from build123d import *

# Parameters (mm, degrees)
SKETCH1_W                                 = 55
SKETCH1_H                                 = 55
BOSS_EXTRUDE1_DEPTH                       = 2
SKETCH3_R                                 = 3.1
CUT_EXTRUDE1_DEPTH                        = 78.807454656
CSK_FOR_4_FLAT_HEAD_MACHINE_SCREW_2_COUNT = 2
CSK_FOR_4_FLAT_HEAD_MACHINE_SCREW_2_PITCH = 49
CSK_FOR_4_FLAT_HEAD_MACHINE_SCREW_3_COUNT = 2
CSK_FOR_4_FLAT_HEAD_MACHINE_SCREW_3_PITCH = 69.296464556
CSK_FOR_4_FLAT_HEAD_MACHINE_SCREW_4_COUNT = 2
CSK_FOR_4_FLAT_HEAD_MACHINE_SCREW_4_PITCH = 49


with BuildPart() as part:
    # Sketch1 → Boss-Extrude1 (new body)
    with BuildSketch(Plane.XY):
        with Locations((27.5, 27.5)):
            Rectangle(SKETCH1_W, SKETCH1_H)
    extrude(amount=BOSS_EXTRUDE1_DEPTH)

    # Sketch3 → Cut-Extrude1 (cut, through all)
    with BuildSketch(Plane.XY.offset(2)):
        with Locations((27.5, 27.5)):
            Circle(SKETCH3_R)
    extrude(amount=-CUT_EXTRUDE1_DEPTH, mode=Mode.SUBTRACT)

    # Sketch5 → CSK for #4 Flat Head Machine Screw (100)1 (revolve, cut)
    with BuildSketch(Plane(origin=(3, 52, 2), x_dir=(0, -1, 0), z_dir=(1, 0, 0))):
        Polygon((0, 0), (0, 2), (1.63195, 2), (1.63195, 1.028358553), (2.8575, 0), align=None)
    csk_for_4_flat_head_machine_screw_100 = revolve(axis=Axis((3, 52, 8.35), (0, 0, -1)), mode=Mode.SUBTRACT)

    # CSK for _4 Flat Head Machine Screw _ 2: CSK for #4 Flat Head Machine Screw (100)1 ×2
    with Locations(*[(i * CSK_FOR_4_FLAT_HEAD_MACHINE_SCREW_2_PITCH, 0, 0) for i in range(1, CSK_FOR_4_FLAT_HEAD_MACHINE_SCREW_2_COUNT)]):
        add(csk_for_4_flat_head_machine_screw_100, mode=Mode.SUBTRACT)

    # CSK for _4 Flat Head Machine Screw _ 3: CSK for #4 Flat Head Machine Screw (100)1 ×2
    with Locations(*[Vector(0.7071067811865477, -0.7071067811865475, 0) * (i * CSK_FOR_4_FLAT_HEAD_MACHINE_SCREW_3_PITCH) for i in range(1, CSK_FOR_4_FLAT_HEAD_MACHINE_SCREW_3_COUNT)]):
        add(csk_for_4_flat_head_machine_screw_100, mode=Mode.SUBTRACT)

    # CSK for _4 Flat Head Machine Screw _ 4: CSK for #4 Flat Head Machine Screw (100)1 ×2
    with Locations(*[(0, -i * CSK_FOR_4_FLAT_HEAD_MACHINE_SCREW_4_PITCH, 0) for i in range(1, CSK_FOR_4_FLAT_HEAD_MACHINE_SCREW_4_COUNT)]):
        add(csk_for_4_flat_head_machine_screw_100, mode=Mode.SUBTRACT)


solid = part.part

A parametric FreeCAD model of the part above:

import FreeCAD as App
import Part
import Sketcher

V = App.Vector
Q = App.Units.Quantity


def add_polygon(sketch, points):
    """Adds a closed chain of lines whose ends are joined by coincident constraints."""
    first, n = sketch.GeometryCount, len(points)
    for a, b in zip(points, points[1:] + points[:1]):
        sketch.addGeometry(Part.LineSegment(App.Vector(*a, 0), App.Vector(*b, 0)), False)
    for i in range(n):
        sketch.addConstraint(Sketcher.Constraint("Coincident", first + i, 2, first + (i + 1) % n, 1))

doc = App.newDocument("Part")
body = doc.addObject("PartDesign::Body", "Body")

sketch1 = body.newObject("Sketcher::SketchObject", "Sketch")
sketch1.AttachmentSupport = (doc.getObject("XY_Plane"), [""])
sketch1.MapMode = "FlatFace"
add_polygon(sketch1, [(0, 55), (0, 0), (55, 0), (55, 55)])
sketch1.addConstraint(Sketcher.Constraint("Vertical", 0))
sketch1.addConstraint(Sketcher.Constraint("Horizontal", 1))
sketch1.addConstraint(Sketcher.Constraint("Vertical", 2))
sketch1.addConstraint(Sketcher.Constraint("Horizontal", 3))
sketch1.addConstraint(Sketcher.Constraint("Coincident", 0, 2, -1, 1))
sketch1.addConstraint(Sketcher.Constraint("Equal", 3, 0))
sketch1.addConstraint(Sketcher.Constraint("DistanceX", 1, 1, 1, 2, Q("55 mm")))
pad1 = body.newObject("PartDesign::Pad", "Pad")
pad1.Profile = sketch1
pad1.Length = 2

sketch2 = body.newObject("Sketcher::SketchObject", "Sketch001")
sketch2.AttachmentSupport = (doc.getObject("XY_Plane"), [""])
sketch2.MapMode = "FlatFace"
sketch2.AttachmentOffset = App.Placement(V(0, 0, 2), App.Rotation())
sketch2.addGeometry(Part.Circle(V(27.5, 27.5, 0), V(0, 0, 1), 3.1), False)
sketch2.addConstraint(Sketcher.Constraint("Diameter", 0, Q("6.2 mm")))
sketch2.addConstraint(Sketcher.Constraint("DistanceX", -1, 1, 0, 3, Q("27.5 mm")))
sketch2.addConstraint(Sketcher.Constraint("DistanceY", -1, 1, 0, 3, Q("27.5 mm")))
pocket1 = body.newObject("PartDesign::Pocket", "Pocket")
pocket1.Profile = sketch2
pocket1.Type = "ThroughAll"

sketch3 = body.newObject("Sketcher::SketchObject", "Sketch002")
sketch3.AttachmentSupport = (doc.getObject("YZ_Plane"), [""])
sketch3.MapMode = "FlatFace"
sketch3.AttachmentOffset = App.Placement(V(0, 0, 3), App.Rotation())
add_polygon(sketch3, [(52, 0), (52, 2), (49.1, 2), (50.4, 1), (50.4, 0)])
sketch3.addGeometry(Part.LineSegment(V(52, 2, 0), V(52, 0, 0)), True)
sketch3.addConstraint(Sketcher.Constraint("Vertical", 0))
sketch3.addConstraint(Sketcher.Constraint("Horizontal", 1))
sketch3.addConstraint(Sketcher.Constraint("Vertical", 3))
sketch3.addConstraint(Sketcher.Constraint("Horizontal", 4))
sketch3.addConstraint(Sketcher.Constraint("Vertical", 5))
sketch3.addConstraint(Sketcher.Constraint("Coincident", 5, 1, 0, 2))
sketch3.addConstraint(Sketcher.Constraint("PointOnObject", 3, 2, -1))
sketch3.addConstraint(Sketcher.Constraint("PointOnObject", 5, 2, -1))
sketch3.addConstraint(Sketcher.Constraint("DistanceY", 0, 1, 0, 2, Q("2 mm")))
sketch3.addConstraint(Sketcher.Constraint("Angle", 2, Q("-40 deg")))
sketch3.addConstraint(Sketcher.Constraint("DistanceX", -1, 1, 0, 2, Q("52 mm")))
sketch3.addConstraint(Sketcher.Constraint("DistanceX", 1, 2, 1, 1, Q("2.8575 mm")))
sketch3.addConstraint(Sketcher.Constraint("DistanceX", 4, 1, 4, 2, Q("1.63195 mm")))
groove = body.newObject("PartDesign::Groove", "Groove")
groove.Profile = sketch3
groove.ReferenceAxis = (sketch3, ["Axis0"])
groove.Angle = 360
doc.recompute()

linearpattern = body.newObject("PartDesign::LinearPattern", "LinearPattern")
linearpattern.Originals = [groove]
linearpattern.Direction = (doc.getObject("X_Axis"), [""])
linearpattern.Mode = "offset"
linearpattern.Offset = 49
linearpattern.Occurrences = 2
body.Tip = linearpattern
doc.recompute()

datumline = body.newObject("PartDesign::Line", "DatumLine")
datumline.Placement = App.Placement(V(0, 0, 0), App.Rotation(V(0, 0, 1), V(0.707106781, -0.707106781, 0)))
linearpattern2 = body.newObject("PartDesign::LinearPattern", "LinearPattern001")
linearpattern2.Originals = [groove]
linearpattern2.Direction = (datumline, [""])
linearpattern2.Mode = "offset"
linearpattern2.Offset = 69.296465
linearpattern2.Occurrences = 2
body.Tip = linearpattern2
doc.recompute()

linearpattern3 = body.newObject("PartDesign::LinearPattern", "LinearPattern002")
linearpattern3.Originals = [groove]
linearpattern3.Direction = (doc.getObject("Y_Axis"), [""])
linearpattern3.Mode = "offset"
linearpattern3.Offset = 49
linearpattern3.Occurrences = 2
linearpattern3.Reversed = True
body.Tip = linearpattern3

doc.recompute()
